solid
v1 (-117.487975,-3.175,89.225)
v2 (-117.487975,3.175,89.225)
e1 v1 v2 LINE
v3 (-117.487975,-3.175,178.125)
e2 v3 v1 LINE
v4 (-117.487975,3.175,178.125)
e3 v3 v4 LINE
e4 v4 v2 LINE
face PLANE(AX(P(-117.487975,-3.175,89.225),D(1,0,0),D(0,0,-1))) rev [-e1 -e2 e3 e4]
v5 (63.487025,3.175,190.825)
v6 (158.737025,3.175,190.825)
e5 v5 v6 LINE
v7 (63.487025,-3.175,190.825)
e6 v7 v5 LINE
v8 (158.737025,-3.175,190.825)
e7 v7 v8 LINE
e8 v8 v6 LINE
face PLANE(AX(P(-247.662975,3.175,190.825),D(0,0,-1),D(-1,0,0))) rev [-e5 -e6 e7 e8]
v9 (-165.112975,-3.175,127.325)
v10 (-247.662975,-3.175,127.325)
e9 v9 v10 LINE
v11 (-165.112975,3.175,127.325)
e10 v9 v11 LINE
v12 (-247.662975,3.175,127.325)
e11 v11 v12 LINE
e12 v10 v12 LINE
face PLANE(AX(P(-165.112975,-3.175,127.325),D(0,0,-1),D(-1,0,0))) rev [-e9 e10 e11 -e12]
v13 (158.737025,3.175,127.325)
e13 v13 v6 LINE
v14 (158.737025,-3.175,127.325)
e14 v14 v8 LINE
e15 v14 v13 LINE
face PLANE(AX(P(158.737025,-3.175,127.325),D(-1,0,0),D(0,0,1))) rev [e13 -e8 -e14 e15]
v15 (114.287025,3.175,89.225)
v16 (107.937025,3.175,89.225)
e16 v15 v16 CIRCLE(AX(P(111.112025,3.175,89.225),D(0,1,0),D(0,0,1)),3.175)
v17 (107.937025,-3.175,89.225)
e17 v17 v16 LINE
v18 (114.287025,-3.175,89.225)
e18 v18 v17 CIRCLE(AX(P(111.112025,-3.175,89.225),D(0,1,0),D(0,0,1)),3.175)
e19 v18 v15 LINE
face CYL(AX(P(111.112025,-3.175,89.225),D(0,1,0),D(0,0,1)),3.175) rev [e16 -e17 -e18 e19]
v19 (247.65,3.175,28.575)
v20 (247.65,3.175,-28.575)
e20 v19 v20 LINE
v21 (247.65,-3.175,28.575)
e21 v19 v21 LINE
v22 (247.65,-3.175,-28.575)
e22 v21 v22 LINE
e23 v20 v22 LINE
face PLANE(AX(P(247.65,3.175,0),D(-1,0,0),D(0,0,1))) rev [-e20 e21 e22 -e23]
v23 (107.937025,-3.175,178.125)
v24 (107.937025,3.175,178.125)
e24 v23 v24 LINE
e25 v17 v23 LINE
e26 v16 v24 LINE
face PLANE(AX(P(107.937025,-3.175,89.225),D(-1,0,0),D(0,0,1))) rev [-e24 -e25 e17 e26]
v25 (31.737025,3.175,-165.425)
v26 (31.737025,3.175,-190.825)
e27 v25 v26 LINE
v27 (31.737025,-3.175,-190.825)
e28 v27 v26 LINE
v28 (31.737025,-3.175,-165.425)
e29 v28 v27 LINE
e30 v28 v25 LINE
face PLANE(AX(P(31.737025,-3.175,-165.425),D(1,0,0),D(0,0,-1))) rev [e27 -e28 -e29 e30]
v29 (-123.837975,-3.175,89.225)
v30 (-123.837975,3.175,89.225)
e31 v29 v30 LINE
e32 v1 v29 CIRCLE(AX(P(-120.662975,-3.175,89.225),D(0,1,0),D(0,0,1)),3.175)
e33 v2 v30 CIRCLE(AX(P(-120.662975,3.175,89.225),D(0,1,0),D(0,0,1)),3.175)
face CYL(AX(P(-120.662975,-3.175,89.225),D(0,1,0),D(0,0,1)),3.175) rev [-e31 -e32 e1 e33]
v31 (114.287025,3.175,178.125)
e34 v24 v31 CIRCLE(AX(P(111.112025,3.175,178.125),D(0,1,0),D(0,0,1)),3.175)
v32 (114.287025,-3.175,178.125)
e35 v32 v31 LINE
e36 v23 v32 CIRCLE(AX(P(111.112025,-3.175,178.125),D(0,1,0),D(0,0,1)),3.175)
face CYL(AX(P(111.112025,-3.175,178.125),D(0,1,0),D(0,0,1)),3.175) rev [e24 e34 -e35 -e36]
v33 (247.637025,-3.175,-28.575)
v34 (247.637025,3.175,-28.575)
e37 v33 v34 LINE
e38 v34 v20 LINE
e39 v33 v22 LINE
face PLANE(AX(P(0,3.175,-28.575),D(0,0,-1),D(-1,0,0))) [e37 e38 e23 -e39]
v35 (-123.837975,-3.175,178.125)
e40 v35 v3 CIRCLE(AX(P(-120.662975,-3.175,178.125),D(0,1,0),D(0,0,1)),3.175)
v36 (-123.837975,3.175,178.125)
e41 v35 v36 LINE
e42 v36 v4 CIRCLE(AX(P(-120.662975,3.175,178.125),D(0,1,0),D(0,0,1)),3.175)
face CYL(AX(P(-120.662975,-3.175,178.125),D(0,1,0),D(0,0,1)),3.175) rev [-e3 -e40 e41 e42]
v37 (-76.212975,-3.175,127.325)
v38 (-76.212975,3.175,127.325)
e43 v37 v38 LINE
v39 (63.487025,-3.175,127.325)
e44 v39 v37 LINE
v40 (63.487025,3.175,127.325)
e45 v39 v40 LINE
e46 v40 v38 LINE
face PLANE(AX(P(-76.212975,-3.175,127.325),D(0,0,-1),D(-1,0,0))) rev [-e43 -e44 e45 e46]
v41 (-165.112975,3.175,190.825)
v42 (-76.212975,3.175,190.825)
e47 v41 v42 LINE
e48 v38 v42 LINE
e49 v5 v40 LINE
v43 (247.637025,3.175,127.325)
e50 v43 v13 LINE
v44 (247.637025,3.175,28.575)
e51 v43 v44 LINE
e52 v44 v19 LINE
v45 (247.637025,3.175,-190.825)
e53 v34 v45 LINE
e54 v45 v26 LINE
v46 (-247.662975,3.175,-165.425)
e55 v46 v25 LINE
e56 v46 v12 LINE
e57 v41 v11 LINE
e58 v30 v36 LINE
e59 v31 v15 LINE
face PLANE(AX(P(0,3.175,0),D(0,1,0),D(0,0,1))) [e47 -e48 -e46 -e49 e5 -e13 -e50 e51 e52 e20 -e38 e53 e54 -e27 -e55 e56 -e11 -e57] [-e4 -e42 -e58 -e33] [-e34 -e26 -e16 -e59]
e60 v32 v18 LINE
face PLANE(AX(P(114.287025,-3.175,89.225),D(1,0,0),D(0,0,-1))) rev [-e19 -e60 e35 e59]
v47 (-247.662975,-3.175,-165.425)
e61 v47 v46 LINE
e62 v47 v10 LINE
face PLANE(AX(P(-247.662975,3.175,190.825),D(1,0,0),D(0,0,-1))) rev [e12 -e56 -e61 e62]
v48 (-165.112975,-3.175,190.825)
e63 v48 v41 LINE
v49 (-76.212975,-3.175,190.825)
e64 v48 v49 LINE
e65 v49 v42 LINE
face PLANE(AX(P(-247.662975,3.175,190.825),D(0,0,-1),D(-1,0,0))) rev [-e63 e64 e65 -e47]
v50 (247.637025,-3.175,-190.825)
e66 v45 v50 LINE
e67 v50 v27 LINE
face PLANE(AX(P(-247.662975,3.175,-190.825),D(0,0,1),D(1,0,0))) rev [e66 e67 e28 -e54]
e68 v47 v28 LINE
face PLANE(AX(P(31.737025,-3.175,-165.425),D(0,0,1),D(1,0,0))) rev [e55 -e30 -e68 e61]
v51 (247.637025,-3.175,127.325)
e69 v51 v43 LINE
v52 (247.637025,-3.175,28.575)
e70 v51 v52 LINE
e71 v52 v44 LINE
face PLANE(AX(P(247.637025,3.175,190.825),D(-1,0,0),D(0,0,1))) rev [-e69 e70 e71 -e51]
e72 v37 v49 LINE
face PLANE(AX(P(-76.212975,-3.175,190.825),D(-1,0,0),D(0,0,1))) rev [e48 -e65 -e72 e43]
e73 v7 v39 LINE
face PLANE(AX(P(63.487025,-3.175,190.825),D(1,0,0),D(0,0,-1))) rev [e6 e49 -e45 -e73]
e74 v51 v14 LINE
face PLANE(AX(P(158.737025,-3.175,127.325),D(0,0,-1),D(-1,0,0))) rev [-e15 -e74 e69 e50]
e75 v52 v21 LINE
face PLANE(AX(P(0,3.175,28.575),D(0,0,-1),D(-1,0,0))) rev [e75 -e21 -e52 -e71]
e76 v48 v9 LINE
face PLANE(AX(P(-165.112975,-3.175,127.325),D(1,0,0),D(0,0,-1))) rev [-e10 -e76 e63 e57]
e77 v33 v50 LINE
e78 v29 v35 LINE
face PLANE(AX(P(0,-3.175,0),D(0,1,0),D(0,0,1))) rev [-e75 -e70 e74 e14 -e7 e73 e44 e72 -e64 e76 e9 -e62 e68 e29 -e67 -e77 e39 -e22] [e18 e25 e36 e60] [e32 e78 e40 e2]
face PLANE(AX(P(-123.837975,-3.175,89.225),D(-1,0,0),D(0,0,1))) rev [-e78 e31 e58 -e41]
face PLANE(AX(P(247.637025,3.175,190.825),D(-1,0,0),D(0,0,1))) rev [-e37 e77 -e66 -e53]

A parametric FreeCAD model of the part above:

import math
import FreeCAD as App
import Part
import Sketcher
Q = App.Units.Quantity

doc = App.newDocument("Part")
params = doc.addObject("Spreadsheet::Sheet", "Params")
for row, (alias, value) in enumerate([
    ("sketch1_width", "19.5 in"),
    ("sketch1_height", "2.25 in"),
    ("pad1_length", "0.25 in"),
    ("sketch2_width", "19.5 in"),
    ("pad2_length", "0.25 in"),
    ("sketch3_width", "3.5 in"),
    ("sketch3_width2", "5.5 in"),
    ("sketch3_height", "2.5 in"),
    ("sketch3_width3", "3.25 in"),
    ("pocket1_length", "0.25 in"),
    ("sketch4_height", "3.5 in"),
    ("sketch4_radius", "0.125 in"),
    ("pocket2_length", "0.25 in"),
    ("sketch5_width", "11 in"),
    ("sketch5_height", "1 in"),
    ("pocket3_length", "0.25 in"),
], start=1):
    params.set(f"A{row}", alias)
    params.set(f"B{row}", "=" + value)
    params.setAlias(f"B{row}", alias)

body = doc.addObject("PartDesign::Body", "Body")

sketch1 = body.newObject("Sketcher::SketchObject", "Sketch")
sketch1.AttachmentSupport = (doc.getObject("XZ_Plane"), [""])
sketch1.MapMode = "FlatFace"
sketch1.addGeometry([
    Part.LineSegment(App.Vector(-248, -29, 0), App.Vector(-248, 29, 0)),
    Part.LineSegment(App.Vector(-248, 29, 0), App.Vector(248, 29, 0)),
    Part.LineSegment(App.Vector(248, 29, 0), App.Vector(248, -29, 0)),
    Part.LineSegment(App.Vector(248, -29, 0), App.Vector(-248, -29, 0)),
], False)
sketch1.addConstraint([
    Sketcher.Constraint("Coincident", 0, 2, 1, 1),
    Sketcher.Constraint("Coincident", 1, 2, 2, 1),
    Sketcher.Constraint("Coincident", 2, 2, 3, 1),
    Sketcher.Constraint("Coincident", 3, 2, 0, 1),
    Sketcher.Constraint("Vertical", 0),
    Sketcher.Constraint("Horizontal", 1),
    Sketcher.Constraint("Vertical", 2),
    Sketcher.Constraint("Horizontal", 3),
    Sketcher.Constraint("Symmetric", 0, 2, 2, 2, -1, 1),
    Sketcher.Constraint("DistanceX", 1, 1, 1, 2, Q("19.5 in")),
    Sketcher.Constraint("DistanceY", 0, 1, 0, 2, Q("2.25 in")),
])
sketch1.setExpression("Constraints[9]", "Params.sketch1_width")
sketch1.setExpression("Constraints[10]", "Params.sketch1_height")
pad1 = body.newObject("PartDesign::Pad", "Pad")
pad1.Profile = sketch1
pad1.setExpression("Length", "Params.pad1_length")
pad1.Midplane = True

sketch2 = body.newObject("Sketcher::SketchObject", "Sketch001")
sketch2.AttachmentSupport = (doc.getObject("XZ_Plane"), [""])
sketch2.MapMode = "FlatFace"
sketch2.addGeometry([
    Part.LineSegment(App.Vector(-248, -191, 0), App.Vector(-248, 191, 0)),
    Part.LineSegment(App.Vector(-248, 191, 0), App.Vector(248, 191, 0)),
    Part.LineSegment(App.Vector(248, 191, 0), App.Vector(248, -191, 0)),
    Part.LineSegment(App.Vector(248, -191, 0), App.Vector(-248, -191, 0)),
], False)
sketch2.addConstraint([
    Sketcher.Constraint("Coincident", 0, 2, 1, 1),
    Sketcher.Constraint("Coincident", 1, 2, 2, 1),
    Sketcher.Constraint("Coincident", 2, 2, 3, 1),
    Sketcher.Constraint("Coincident", 3, 2, 0, 1),
    Sketcher.Constraint("Vertical", 0),
    Sketcher.Constraint("Horizontal", 1),
    Sketcher.Constraint("Vertical", 2),
    Sketcher.Constraint("Horizontal", 3),
    Sketcher.Constraint("DistanceX", 1, 1, 1, 2, Q("19.5 in")),
    Sketcher.Constraint("DistanceY", 0, 1, 0, 2, Q("381.65 mm")),
    Sketcher.Constraint("DistanceY", -1, 1, 0, 2, Q("190.825 mm")),
    Sketcher.Constraint("DistanceX", 0, 2, -1, 1, Q("247.662975 mm")),
])
sketch2.setExpression("Constraints[8]", "Params.sketch2_width")
pad2 = body.newObject("PartDesign::Pad", "Pad001")
pad2.Profile = sketch2
pad2.setExpression("Length", "Params.pad2_length")
pad2.Midplane = True

sketch3 = body.newObject("Sketcher::SketchObject", "Sketch002")
sketch3.AttachmentSupport = (doc.getObject("XZ_Plane"), [""])
sketch3.MapMode = "FlatFace"
sketch3.AttachmentOffset = App.Placement(App.Vector(0, 0, -0.125 * 25.4), App.Rotation())
sketch3.addGeometry([
    Part.LineSegment(App.Vector(159, 127, 0), App.Vector(159, 191, 0)),
    Part.LineSegment(App.Vector(159, 191, 0), App.Vector(248, 191, 0)),
    Part.LineSegment(App.Vector(248, 191, 0), App.Vector(248, 127, 0)),
    Part.LineSegment(App.Vector(248, 127, 0), App.Vector(159, 127, 0)),
    Part.LineSegment(App.Vector(-76, 127, 0), App.Vector(-76, 191, 0)),
    Part.LineSegment(App.Vector(-76, 191, 0), App.Vector(63, 191, 0)),
    Part.LineSegment(App.Vector(63, 191, 0), App.Vector(63, 127, 0)),
    Part.LineSegment(App.Vector(63, 127, 0), App.Vector(-76, 127, 0)),
    Part.LineSegment(App.Vector(-248, 127, 0), App.Vector(-248, 191, 0)),
    Part.LineSegment(App.Vector(-248, 191, 0), App.Vector(-165, 191, 0)),
    Part.LineSegment(App.Vector(-165, 191, 0), App.Vector(-165, 127, 0)),
    Part.LineSegment(App.Vector(-165, 127, 0), App.Vector(-248, 127, 0)),
], False)
sketch3.addConstraint([
    Sketcher.Constraint("Coincident", 0, 2, 1, 1),
    Sketcher.Constraint("Coincident", 1, 2, 2, 1),
    Sketcher.Constraint("Coincident", 2, 2, 3, 1),
    Sketcher.Constraint("Coincident", 3, 2, 0, 1),
    Sketcher.Constraint("Coincident", 4, 2, 5, 1),
    Sketcher.Constraint("Coincident", 5, 2, 6, 1),
    Sketcher.Constraint("Coincident", 6, 2, 7, 1),
    Sketcher.Constraint("Coincident", 7, 2, 4, 1),
    Sketcher.Constraint("Coincident", 8, 2, 9, 1),
    Sketcher.Constraint("Coincident", 9, 2, 10, 1),
    Sketcher.Constraint("Coincident", 10, 2, 11, 1),
    Sketcher.Constraint("Coincident", 11, 2, 8, 1),
    Sketcher.Constraint("Vertical", 0),
    Sketcher.Constraint("Horizontal", 1),
    Sketcher.Constraint("Vertical", 2),
    Sketcher.Constraint("Horizontal", 3),
    Sketcher.Constraint("Vertical", 4),
    Sketcher.Constraint("Horizontal", 5),
    Sketcher.Constraint("Vertical", 6),
    Sketcher.Constraint("Horizontal", 7),
    Sketcher.Constraint("Vertical", 8),
    Sketcher.Constraint("Horizontal", 9),
    Sketcher.Constraint("Vertical", 10),
    Sketcher.Constraint("Horizontal", 11),
    Sketcher.Constraint("Horizontal", 1, 2, 4, 2),
    Sketcher.Constraint("Horizontal", 3, 2, 6, 2),
    Sketcher.Constraint("Horizontal", 5, 2, 8, 2),
    Sketcher.Constraint("Horizontal", 7, 2, 10, 2),
    Sketcher.Constraint("DistanceX", 1, 1, 1, 2, Q("3.5 in")),
    Sketcher.Constraint("DistanceX", 5, 1, 5, 2, Q("5.5 in")),
    Sketcher.Constraint("DistanceY", 0, 1, 0, 2, Q("2.5 in")),
    Sketcher.Constraint("DistanceX", 8, 2, 0, 2, Q("16 in")),
    Sketcher.Constraint("DistanceX", 9, 2, 5, 2, Q("9 in")),
    Sketcher.Constraint("DistanceX", 9, 1, 9, 2, Q("3.25 in")),
    Sketcher.Constraint("DistanceY", -1, 1, 0, 2, Q("190.825 mm")),
    Sketcher.Constraint("DistanceX", -1, 1, 0, 2, Q("158.737025 mm")),
])
sketch3.setExpression("Constraints[28]", "Params.sketch3_width")
sketch3.setExpression("Constraints[29]", "Params.sketch3_width2")
sketch3.setExpression("Constraints[30]", "Params.sketch3_height")
sketch3.setExpression("Constraints[33]", "Params.sketch3_width3")
pocket1 = body.newObject("PartDesign::Pocket", "Pocket")
pocket1.Profile = sketch3
pocket1.setExpression("Length", "Params.pocket1_length")
pocket1.Reversed = True

sketch4 = body.newObject("Sketcher::SketchObject", "Sketch003")
sketch4.AttachmentSupport = (doc.getObject("XZ_Plane"), [""])
sketch4.MapMode = "FlatFace"
sketch4.AttachmentOffset = App.Placement(App.Vector(0, 0, -0.125 * 25.4), App.Rotation())
sketch4.addGeometry([
    Part.LineSegment(App.Vector(114.3, 178.1, 0), App.Vector(114.3, 89.2, 0)),
    Part.ArcOfCircle(Part.Circle(App.Vector(111.1, 89.2, 0), App.Vector(0, 0, 1), 3.2), math.radians(180), math.radians(360)),
    Part.LineSegment(App.Vector(107.9, 89.2, 0), App.Vector(107.9, 178.1, 0)),
    Part.ArcOfCircle(Part.Circle(App.Vector(111.1, 178.1, 0), App.Vector(0, 0, 1), 3.2), math.radians(0), math.radians(180)),
    Part.LineSegment(App.Vector(-117.5, 178.1, 0), App.Vector(-117.5, 89.2, 0)),
    Part.ArcOfCircle(Part.Circle(App.Vector(-120.7, 89.2, 0), App.Vector(0, 0, 1), 3.2), math.radians(180), math.radians(360)),
    Part.LineSegment(App.Vector(-123.8, 89.2, 0), App.Vector(-123.8, 178.1, 0)),
    Part.ArcOfCircle(Part.Circle(App.Vector(-120.7, 178.1, 0), App.Vector(0, 0, 1), 3.2), math.radians(0), math.radians(180)),
], False)
sketch4.addConstraint([
    Sketcher.Constraint("Tangent", 0, 2, 1, 2),
    Sketcher.Constraint("Tangent", 1, 1, 2, 1),
    Sketcher.Constraint("Tangent", 2, 2, 3, 2),
    Sketcher.Constraint("Tangent", 3, 1, 0, 1),
    Sketcher.Constraint("Tangent", 4, 2, 5, 2),
    Sketcher.Constraint("Tangent", 5, 1, 6, 1),
    Sketcher.Constraint("Tangent", 6, 2, 7, 2),
    Sketcher.Constraint("Tangent", 7, 1, 4, 1),
    Sketcher.Constraint("Vertical", 0),
    Sketcher.Constraint("Vertical", 2),
    Sketcher.Constraint("Vertical", 4),
    Sketcher.Constraint("Vertical", 6),
    Sketcher.Constraint("Equal", 3, 5),
    Sketcher.Constraint("Horizontal", 1, 3, 5, 3),
    Sketcher.Constraint("Horizontal", 3, 3, 7, 3),
    Sketcher.Constraint("DistanceY", 0, 2, 0, 1, Q("3.5 in")),
    Sketcher.Constraint("Radius", 1, Q("0.125 in")),
    Sketcher.Constraint("DistanceX", 5, 3, 1, 1, Q("9 in")),
    Sketcher.Constraint("DistanceY", -1, 1, 1, 3, Q("89.225 mm")),
    Sketcher.Constraint("DistanceX", -1, 1, 1, 3, Q("111.112025 mm")),
])
sketch4.setExpression("Constraints[15]", "Params.sketch4_height")
sketch4.setExpression("Constraints[16]", "Params.sketch4_radius")
pocket2 = body.newObject("PartDesign::Pocket", "Pocket001")
pocket2.Profile = sketch4
pocket2.setExpression("Length", "Params.pocket2_length")
pocket2.Reversed = True

sketch5 = body.newObject("Sketcher::SketchObject", "Sketch004")
sketch5.AttachmentSupport = (doc.getObject("XZ_Plane"), [""])
sketch5.MapMode = "FlatFace"
sketch5.AttachmentOffset = App.Placement(App.Vector(0, 0, -0.125 * 25.4), App.Rotation())
sketch5.addGeometry([
    Part.LineSegment(App.Vector(-248, -191, 0), App.Vector(-248, -165, 0)),
    Part.LineSegment(App.Vector(-248, -165, 0), App.Vector(32, -165, 0)),
    Part.LineSegment(App.Vector(32, -165, 0), App.Vector(32, -191, 0)),
    Part.LineSegment(App.Vector(32, -191, 0), App.Vector(-248, -191, 0)),
], False)
sketch5.addConstraint([
    Sketcher.Constraint("Coincident", 0, 2, 1, 1),
    Sketcher.Constraint("Coincident", 1, 2, 2, 1),
    Sketcher.Constraint("Coincident", 2, 2, 3, 1),
    Sketcher.Constraint("Coincident", 3, 2, 0, 1),
    Sketcher.Constraint("Vertical", 0),
    Sketcher.Constraint("Horizontal", 1),
    Sketcher.Constraint("Vertical", 2),
    Sketcher.Constraint("Horizontal", 3),
    Sketcher.Constraint("DistanceX", 1, 1, 1, 2, Q("11 in")),
    Sketcher.Constraint("DistanceY", 0, 1, 0, 2, Q("1 in")),
    Sketcher.Constraint("DistanceY", 0, 2, -1, 1, Q("165.425 mm")),
    Sketcher.Constraint("DistanceX", 0, 2, -1, 1, Q("247.662975 mm")),
])
sketch5.setExpression("Constraints[8]", "Params.sketch5_width")
sketch5.setExpression("Constraints[9]", "Params.sketch5_height")
pocket3 = body.newObject("PartDesign::Pocket", "Pocket002")
pocket3.Profile = sketch5
pocket3.setExpression("Length", "Params.pocket3_length")
pocket3.Reversed = True

doc.recompute()
